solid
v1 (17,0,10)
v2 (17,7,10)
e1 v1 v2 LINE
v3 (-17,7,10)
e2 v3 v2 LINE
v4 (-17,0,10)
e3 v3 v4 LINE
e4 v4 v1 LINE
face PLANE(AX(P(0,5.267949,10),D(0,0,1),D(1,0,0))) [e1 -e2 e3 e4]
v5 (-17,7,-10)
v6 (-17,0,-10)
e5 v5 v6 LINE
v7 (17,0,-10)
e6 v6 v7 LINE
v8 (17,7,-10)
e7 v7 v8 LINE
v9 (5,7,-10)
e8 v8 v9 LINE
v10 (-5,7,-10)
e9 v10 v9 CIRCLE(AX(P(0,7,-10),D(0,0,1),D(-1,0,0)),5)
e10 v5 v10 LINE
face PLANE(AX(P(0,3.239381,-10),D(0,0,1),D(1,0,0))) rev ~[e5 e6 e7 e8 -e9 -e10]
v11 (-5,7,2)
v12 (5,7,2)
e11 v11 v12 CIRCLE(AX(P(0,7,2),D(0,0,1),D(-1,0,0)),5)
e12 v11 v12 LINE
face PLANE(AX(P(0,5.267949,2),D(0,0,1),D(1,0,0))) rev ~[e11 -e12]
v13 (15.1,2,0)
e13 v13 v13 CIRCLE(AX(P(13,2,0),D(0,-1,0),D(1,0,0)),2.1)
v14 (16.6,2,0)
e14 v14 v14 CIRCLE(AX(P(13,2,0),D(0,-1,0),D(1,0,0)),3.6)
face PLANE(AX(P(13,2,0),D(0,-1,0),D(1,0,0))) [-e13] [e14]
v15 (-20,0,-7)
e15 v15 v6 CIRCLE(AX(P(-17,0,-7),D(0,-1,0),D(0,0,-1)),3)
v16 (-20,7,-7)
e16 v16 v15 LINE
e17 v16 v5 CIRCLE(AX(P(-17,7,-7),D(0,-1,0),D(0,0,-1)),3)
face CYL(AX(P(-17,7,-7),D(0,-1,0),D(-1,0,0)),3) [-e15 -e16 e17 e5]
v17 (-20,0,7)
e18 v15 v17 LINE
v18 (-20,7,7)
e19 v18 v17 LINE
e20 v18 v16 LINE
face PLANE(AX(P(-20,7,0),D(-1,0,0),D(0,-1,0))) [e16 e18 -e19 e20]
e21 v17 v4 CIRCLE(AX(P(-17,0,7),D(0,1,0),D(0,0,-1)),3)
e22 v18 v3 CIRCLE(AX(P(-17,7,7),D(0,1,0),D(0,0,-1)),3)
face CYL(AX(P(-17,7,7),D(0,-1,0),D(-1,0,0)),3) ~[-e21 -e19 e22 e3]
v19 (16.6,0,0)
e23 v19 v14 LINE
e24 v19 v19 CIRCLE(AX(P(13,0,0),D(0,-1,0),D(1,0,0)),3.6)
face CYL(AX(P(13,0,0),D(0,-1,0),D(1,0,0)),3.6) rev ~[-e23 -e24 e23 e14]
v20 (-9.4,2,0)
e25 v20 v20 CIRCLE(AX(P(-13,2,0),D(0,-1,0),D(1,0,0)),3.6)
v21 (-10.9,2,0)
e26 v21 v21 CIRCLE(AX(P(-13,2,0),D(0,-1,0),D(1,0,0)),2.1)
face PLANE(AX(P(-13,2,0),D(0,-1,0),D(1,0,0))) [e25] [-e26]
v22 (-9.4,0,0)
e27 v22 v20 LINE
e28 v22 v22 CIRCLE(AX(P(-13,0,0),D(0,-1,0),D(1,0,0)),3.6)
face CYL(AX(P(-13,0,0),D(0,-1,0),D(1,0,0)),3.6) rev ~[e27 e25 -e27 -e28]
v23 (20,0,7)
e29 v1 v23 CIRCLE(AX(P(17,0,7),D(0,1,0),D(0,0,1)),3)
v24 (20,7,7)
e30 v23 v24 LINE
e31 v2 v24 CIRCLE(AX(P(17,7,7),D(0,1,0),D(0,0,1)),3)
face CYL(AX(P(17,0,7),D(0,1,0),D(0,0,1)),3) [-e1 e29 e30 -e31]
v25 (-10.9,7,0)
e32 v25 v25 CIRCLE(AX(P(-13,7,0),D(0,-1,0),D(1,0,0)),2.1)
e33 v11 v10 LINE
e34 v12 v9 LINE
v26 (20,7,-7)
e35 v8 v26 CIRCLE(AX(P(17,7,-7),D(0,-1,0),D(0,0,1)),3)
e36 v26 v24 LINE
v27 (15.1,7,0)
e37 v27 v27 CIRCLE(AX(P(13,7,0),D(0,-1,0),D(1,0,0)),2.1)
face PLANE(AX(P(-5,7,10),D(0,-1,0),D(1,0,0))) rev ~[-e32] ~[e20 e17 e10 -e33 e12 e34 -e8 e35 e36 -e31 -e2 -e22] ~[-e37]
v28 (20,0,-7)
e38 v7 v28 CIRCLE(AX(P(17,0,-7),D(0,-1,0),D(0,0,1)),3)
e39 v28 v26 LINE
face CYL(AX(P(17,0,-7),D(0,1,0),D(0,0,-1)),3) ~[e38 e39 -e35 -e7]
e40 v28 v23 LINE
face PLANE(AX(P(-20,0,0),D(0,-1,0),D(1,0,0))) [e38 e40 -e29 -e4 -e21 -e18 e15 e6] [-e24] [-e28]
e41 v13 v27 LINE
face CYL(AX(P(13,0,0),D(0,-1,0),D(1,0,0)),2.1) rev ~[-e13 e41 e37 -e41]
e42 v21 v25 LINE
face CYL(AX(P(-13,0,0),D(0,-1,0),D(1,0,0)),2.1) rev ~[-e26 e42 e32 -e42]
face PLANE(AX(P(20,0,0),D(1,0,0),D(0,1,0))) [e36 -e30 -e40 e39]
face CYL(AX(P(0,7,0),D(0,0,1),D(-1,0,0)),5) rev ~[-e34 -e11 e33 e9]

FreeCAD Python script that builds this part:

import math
import FreeCAD as App
import Part
import Sketcher

V = App.Vector


def edges_at(feature, points):
    """Names of the edges that pass closest to the given points."""
    edges = feature.Shape.Edges
    near = lambda p: min(range(len(edges)), key=lambda i: edges[i].distToShape(Part.Vertex(*p))[0])
    return sorted({f"Edge{near(p) + 1}" for p in points})

doc = App.newDocument("Part")
body = doc.addObject("PartDesign::Body", "Body")

# Sketch on XY plane
sketch1 = body.newObject("Sketcher::SketchObject", "Sketch")
sketch1.AttachmentSupport = (doc.getObject("XY_Plane"), [""])
sketch1.MapMode = "FlatFace"
sketch1.addGeometry([
    Part.LineSegment(V(-20, 7, 0), V(-20, 0, 0)),  # 0
    Part.LineSegment(V(-20, 0, 0), V(20, 0, 0)),  # 1
    Part.LineSegment(V(20, 0, 0), V(20, 7, 0)),  # 2
    Part.LineSegment(V(20, 7, 0), V(5, 7, 0)),  # 3
    Part.ArcOfCircle(Part.Circle(V(0, 7, 0), V(0, 0, 1), 5), math.radians(180), math.radians(360)),  # 4
    Part.LineSegment(V(-5, 7, 0), V(-20, 7, 0)),  # 5
], False)
sketch1.addConstraint([
    Sketcher.Constraint("Coincident", 0, 2, 1, 1),
    Sketcher.Constraint("Coincident", 1, 2, 2, 1),
    Sketcher.Constraint("Coincident", 2, 2, 3, 1),
    Sketcher.Constraint("Coincident", 3, 2, 4, 2),
    Sketcher.Constraint("Coincident", 4, 1, 5, 1),
    Sketcher.Constraint("Coincident", 5, 2, 0, 1),
    Sketcher.Constraint("Vertical", 0),
    Sketcher.Constraint("Horizontal", 1),
    Sketcher.Constraint("Vertical", 2),
    Sketcher.Constraint("Horizontal", 3),
    Sketcher.Constraint("Horizontal", 5),
    Sketcher.Constraint("Symmetric", 0, 2, 1, 2, -1, 1),
    Sketcher.Constraint("Symmetric", 3, 2, 4, 1, -2),
    Sketcher.Constraint("Horizontal", 4, 3, 2, 2),
    Sketcher.Constraint("Radius", 4, 5.0),
    Sketcher.Constraint("DistanceX", 1, 1, 1, 2, 40.0),
    Sketcher.Constraint("DistanceY", 0, 2, 0, 1, 7.0),
])
pad1 = body.newObject("PartDesign::Pad", "Pad")
pad1.Profile = sketch1
pad1.Length = 20
pad1.Midplane = True

# Sketch on XZ plane
sketch2 = body.newObject("Sketcher::SketchObject", "Sketch001")
sketch2.AttachmentSupport = (doc.getObject("XZ_Plane"), [""])
sketch2.MapMode = "FlatFace"
sketch2.addGeometry([
    Part.Circle(V(-13, 0, 0), V(0, 0, 1), 2.1),
    Part.Circle(V(13, 0, 0), V(0, 0, 1), 2.1),
], False)
sketch2.addConstraint([
    Sketcher.Constraint("Equal", 0, 1),
    Sketcher.Constraint("Symmetric", 0, 3, 1, 3, -1, 1),
    Sketcher.Constraint("PointOnObject", 0, 3, -1),
    Sketcher.Constraint("Diameter", 0, 4.2),
    Sketcher.Constraint("DistanceX", 0, 3, -1, 1, 13.0),
])
pocket1 = body.newObject("PartDesign::Pocket", "Pocket")
pocket1.Profile = sketch2
pocket1.Length = 10
doc.recompute()

fillet = body.newObject("PartDesign::Fillet", "Fillet")
fillet.Base = (pocket1, edges_at(pocket1, [
    (-20, 3.5, -10),
    (20, 3.5, -10),
    (-20, 3.5, 10),
    (20, 3.5, 10),
]))
fillet.Radius = 3

# Sketch on XZ plane
sketch3 = body.newObject("Sketcher::SketchObject", "Sketch002")
sketch3.AttachmentSupport = (doc.getObject("XZ_Plane"), [""])
sketch3.MapMode = "FlatFace"
sketch3.addGeometry([
    Part.Circle(V(-13, 0, 0), V(0, 0, 1), 3.6),
    Part.Circle(V(13, 0, 0), V(0, 0, 1), 3.6),
], False)
sketch3.addConstraint([
    Sketcher.Constraint("Equal", 0, 1),
    Sketcher.Constraint("Symmetric", 0, 3, 1, 3, -1, 1),
    Sketcher.Constraint("PointOnObject", 0, 3, -1),
    Sketcher.Constraint("Diameter", 0, 7.2),
    Sketcher.Constraint("DistanceX", 0, 3, -1, 1, 13.0),
])
pocket2 = body.newObject("PartDesign::Pocket", "Pocket001")
pocket2.Profile = sketch3
pocket2.Length = 2

# Sketch on XY plane
sketch4 = body.newObject("Sketcher::SketchObject", "Sketch003")
sketch4.AttachmentSupport = (doc.getObject("XY_Plane"), [""])
sketch4.MapMode = "FlatFace"
sketch4.AttachmentOffset = App.Placement(V(0, 0, 10), App.Rotation())
sketch4.addGeometry([
    Part.ArcOfCircle(Part.Circle(V(0, 7, 0), V(0, 0, 1), 5), math.radians(180), math.radians(360)),
    Part.LineSegment(V(5, 7, 0), V(-5, 7, 0)),
], False)
sketch4.addConstraint([
    Sketcher.Constraint("Coincident", 0, 1, 1, 2),
    Sketcher.Constraint("Coincident", 1, 1, 0, 2),
    Sketcher.Constraint("Horizontal", 1),
    Sketcher.Constraint("PointOnObject", 0, 3, -2),
    Sketcher.Constraint("Radius", 0, 5.0),
    Sketcher.Constraint("DistanceY", -1, 1, 0, 3, 7.0),
    Sketcher.Constraint("DistanceY", -1, 1, 0, 1, 7.0),
])
pad2 = body.newObject("PartDesign::Pad", "Pad001")
pad2.Profile = sketch4
pad2.Length = 8
pad2.Reversed = True

doc.recompute()
